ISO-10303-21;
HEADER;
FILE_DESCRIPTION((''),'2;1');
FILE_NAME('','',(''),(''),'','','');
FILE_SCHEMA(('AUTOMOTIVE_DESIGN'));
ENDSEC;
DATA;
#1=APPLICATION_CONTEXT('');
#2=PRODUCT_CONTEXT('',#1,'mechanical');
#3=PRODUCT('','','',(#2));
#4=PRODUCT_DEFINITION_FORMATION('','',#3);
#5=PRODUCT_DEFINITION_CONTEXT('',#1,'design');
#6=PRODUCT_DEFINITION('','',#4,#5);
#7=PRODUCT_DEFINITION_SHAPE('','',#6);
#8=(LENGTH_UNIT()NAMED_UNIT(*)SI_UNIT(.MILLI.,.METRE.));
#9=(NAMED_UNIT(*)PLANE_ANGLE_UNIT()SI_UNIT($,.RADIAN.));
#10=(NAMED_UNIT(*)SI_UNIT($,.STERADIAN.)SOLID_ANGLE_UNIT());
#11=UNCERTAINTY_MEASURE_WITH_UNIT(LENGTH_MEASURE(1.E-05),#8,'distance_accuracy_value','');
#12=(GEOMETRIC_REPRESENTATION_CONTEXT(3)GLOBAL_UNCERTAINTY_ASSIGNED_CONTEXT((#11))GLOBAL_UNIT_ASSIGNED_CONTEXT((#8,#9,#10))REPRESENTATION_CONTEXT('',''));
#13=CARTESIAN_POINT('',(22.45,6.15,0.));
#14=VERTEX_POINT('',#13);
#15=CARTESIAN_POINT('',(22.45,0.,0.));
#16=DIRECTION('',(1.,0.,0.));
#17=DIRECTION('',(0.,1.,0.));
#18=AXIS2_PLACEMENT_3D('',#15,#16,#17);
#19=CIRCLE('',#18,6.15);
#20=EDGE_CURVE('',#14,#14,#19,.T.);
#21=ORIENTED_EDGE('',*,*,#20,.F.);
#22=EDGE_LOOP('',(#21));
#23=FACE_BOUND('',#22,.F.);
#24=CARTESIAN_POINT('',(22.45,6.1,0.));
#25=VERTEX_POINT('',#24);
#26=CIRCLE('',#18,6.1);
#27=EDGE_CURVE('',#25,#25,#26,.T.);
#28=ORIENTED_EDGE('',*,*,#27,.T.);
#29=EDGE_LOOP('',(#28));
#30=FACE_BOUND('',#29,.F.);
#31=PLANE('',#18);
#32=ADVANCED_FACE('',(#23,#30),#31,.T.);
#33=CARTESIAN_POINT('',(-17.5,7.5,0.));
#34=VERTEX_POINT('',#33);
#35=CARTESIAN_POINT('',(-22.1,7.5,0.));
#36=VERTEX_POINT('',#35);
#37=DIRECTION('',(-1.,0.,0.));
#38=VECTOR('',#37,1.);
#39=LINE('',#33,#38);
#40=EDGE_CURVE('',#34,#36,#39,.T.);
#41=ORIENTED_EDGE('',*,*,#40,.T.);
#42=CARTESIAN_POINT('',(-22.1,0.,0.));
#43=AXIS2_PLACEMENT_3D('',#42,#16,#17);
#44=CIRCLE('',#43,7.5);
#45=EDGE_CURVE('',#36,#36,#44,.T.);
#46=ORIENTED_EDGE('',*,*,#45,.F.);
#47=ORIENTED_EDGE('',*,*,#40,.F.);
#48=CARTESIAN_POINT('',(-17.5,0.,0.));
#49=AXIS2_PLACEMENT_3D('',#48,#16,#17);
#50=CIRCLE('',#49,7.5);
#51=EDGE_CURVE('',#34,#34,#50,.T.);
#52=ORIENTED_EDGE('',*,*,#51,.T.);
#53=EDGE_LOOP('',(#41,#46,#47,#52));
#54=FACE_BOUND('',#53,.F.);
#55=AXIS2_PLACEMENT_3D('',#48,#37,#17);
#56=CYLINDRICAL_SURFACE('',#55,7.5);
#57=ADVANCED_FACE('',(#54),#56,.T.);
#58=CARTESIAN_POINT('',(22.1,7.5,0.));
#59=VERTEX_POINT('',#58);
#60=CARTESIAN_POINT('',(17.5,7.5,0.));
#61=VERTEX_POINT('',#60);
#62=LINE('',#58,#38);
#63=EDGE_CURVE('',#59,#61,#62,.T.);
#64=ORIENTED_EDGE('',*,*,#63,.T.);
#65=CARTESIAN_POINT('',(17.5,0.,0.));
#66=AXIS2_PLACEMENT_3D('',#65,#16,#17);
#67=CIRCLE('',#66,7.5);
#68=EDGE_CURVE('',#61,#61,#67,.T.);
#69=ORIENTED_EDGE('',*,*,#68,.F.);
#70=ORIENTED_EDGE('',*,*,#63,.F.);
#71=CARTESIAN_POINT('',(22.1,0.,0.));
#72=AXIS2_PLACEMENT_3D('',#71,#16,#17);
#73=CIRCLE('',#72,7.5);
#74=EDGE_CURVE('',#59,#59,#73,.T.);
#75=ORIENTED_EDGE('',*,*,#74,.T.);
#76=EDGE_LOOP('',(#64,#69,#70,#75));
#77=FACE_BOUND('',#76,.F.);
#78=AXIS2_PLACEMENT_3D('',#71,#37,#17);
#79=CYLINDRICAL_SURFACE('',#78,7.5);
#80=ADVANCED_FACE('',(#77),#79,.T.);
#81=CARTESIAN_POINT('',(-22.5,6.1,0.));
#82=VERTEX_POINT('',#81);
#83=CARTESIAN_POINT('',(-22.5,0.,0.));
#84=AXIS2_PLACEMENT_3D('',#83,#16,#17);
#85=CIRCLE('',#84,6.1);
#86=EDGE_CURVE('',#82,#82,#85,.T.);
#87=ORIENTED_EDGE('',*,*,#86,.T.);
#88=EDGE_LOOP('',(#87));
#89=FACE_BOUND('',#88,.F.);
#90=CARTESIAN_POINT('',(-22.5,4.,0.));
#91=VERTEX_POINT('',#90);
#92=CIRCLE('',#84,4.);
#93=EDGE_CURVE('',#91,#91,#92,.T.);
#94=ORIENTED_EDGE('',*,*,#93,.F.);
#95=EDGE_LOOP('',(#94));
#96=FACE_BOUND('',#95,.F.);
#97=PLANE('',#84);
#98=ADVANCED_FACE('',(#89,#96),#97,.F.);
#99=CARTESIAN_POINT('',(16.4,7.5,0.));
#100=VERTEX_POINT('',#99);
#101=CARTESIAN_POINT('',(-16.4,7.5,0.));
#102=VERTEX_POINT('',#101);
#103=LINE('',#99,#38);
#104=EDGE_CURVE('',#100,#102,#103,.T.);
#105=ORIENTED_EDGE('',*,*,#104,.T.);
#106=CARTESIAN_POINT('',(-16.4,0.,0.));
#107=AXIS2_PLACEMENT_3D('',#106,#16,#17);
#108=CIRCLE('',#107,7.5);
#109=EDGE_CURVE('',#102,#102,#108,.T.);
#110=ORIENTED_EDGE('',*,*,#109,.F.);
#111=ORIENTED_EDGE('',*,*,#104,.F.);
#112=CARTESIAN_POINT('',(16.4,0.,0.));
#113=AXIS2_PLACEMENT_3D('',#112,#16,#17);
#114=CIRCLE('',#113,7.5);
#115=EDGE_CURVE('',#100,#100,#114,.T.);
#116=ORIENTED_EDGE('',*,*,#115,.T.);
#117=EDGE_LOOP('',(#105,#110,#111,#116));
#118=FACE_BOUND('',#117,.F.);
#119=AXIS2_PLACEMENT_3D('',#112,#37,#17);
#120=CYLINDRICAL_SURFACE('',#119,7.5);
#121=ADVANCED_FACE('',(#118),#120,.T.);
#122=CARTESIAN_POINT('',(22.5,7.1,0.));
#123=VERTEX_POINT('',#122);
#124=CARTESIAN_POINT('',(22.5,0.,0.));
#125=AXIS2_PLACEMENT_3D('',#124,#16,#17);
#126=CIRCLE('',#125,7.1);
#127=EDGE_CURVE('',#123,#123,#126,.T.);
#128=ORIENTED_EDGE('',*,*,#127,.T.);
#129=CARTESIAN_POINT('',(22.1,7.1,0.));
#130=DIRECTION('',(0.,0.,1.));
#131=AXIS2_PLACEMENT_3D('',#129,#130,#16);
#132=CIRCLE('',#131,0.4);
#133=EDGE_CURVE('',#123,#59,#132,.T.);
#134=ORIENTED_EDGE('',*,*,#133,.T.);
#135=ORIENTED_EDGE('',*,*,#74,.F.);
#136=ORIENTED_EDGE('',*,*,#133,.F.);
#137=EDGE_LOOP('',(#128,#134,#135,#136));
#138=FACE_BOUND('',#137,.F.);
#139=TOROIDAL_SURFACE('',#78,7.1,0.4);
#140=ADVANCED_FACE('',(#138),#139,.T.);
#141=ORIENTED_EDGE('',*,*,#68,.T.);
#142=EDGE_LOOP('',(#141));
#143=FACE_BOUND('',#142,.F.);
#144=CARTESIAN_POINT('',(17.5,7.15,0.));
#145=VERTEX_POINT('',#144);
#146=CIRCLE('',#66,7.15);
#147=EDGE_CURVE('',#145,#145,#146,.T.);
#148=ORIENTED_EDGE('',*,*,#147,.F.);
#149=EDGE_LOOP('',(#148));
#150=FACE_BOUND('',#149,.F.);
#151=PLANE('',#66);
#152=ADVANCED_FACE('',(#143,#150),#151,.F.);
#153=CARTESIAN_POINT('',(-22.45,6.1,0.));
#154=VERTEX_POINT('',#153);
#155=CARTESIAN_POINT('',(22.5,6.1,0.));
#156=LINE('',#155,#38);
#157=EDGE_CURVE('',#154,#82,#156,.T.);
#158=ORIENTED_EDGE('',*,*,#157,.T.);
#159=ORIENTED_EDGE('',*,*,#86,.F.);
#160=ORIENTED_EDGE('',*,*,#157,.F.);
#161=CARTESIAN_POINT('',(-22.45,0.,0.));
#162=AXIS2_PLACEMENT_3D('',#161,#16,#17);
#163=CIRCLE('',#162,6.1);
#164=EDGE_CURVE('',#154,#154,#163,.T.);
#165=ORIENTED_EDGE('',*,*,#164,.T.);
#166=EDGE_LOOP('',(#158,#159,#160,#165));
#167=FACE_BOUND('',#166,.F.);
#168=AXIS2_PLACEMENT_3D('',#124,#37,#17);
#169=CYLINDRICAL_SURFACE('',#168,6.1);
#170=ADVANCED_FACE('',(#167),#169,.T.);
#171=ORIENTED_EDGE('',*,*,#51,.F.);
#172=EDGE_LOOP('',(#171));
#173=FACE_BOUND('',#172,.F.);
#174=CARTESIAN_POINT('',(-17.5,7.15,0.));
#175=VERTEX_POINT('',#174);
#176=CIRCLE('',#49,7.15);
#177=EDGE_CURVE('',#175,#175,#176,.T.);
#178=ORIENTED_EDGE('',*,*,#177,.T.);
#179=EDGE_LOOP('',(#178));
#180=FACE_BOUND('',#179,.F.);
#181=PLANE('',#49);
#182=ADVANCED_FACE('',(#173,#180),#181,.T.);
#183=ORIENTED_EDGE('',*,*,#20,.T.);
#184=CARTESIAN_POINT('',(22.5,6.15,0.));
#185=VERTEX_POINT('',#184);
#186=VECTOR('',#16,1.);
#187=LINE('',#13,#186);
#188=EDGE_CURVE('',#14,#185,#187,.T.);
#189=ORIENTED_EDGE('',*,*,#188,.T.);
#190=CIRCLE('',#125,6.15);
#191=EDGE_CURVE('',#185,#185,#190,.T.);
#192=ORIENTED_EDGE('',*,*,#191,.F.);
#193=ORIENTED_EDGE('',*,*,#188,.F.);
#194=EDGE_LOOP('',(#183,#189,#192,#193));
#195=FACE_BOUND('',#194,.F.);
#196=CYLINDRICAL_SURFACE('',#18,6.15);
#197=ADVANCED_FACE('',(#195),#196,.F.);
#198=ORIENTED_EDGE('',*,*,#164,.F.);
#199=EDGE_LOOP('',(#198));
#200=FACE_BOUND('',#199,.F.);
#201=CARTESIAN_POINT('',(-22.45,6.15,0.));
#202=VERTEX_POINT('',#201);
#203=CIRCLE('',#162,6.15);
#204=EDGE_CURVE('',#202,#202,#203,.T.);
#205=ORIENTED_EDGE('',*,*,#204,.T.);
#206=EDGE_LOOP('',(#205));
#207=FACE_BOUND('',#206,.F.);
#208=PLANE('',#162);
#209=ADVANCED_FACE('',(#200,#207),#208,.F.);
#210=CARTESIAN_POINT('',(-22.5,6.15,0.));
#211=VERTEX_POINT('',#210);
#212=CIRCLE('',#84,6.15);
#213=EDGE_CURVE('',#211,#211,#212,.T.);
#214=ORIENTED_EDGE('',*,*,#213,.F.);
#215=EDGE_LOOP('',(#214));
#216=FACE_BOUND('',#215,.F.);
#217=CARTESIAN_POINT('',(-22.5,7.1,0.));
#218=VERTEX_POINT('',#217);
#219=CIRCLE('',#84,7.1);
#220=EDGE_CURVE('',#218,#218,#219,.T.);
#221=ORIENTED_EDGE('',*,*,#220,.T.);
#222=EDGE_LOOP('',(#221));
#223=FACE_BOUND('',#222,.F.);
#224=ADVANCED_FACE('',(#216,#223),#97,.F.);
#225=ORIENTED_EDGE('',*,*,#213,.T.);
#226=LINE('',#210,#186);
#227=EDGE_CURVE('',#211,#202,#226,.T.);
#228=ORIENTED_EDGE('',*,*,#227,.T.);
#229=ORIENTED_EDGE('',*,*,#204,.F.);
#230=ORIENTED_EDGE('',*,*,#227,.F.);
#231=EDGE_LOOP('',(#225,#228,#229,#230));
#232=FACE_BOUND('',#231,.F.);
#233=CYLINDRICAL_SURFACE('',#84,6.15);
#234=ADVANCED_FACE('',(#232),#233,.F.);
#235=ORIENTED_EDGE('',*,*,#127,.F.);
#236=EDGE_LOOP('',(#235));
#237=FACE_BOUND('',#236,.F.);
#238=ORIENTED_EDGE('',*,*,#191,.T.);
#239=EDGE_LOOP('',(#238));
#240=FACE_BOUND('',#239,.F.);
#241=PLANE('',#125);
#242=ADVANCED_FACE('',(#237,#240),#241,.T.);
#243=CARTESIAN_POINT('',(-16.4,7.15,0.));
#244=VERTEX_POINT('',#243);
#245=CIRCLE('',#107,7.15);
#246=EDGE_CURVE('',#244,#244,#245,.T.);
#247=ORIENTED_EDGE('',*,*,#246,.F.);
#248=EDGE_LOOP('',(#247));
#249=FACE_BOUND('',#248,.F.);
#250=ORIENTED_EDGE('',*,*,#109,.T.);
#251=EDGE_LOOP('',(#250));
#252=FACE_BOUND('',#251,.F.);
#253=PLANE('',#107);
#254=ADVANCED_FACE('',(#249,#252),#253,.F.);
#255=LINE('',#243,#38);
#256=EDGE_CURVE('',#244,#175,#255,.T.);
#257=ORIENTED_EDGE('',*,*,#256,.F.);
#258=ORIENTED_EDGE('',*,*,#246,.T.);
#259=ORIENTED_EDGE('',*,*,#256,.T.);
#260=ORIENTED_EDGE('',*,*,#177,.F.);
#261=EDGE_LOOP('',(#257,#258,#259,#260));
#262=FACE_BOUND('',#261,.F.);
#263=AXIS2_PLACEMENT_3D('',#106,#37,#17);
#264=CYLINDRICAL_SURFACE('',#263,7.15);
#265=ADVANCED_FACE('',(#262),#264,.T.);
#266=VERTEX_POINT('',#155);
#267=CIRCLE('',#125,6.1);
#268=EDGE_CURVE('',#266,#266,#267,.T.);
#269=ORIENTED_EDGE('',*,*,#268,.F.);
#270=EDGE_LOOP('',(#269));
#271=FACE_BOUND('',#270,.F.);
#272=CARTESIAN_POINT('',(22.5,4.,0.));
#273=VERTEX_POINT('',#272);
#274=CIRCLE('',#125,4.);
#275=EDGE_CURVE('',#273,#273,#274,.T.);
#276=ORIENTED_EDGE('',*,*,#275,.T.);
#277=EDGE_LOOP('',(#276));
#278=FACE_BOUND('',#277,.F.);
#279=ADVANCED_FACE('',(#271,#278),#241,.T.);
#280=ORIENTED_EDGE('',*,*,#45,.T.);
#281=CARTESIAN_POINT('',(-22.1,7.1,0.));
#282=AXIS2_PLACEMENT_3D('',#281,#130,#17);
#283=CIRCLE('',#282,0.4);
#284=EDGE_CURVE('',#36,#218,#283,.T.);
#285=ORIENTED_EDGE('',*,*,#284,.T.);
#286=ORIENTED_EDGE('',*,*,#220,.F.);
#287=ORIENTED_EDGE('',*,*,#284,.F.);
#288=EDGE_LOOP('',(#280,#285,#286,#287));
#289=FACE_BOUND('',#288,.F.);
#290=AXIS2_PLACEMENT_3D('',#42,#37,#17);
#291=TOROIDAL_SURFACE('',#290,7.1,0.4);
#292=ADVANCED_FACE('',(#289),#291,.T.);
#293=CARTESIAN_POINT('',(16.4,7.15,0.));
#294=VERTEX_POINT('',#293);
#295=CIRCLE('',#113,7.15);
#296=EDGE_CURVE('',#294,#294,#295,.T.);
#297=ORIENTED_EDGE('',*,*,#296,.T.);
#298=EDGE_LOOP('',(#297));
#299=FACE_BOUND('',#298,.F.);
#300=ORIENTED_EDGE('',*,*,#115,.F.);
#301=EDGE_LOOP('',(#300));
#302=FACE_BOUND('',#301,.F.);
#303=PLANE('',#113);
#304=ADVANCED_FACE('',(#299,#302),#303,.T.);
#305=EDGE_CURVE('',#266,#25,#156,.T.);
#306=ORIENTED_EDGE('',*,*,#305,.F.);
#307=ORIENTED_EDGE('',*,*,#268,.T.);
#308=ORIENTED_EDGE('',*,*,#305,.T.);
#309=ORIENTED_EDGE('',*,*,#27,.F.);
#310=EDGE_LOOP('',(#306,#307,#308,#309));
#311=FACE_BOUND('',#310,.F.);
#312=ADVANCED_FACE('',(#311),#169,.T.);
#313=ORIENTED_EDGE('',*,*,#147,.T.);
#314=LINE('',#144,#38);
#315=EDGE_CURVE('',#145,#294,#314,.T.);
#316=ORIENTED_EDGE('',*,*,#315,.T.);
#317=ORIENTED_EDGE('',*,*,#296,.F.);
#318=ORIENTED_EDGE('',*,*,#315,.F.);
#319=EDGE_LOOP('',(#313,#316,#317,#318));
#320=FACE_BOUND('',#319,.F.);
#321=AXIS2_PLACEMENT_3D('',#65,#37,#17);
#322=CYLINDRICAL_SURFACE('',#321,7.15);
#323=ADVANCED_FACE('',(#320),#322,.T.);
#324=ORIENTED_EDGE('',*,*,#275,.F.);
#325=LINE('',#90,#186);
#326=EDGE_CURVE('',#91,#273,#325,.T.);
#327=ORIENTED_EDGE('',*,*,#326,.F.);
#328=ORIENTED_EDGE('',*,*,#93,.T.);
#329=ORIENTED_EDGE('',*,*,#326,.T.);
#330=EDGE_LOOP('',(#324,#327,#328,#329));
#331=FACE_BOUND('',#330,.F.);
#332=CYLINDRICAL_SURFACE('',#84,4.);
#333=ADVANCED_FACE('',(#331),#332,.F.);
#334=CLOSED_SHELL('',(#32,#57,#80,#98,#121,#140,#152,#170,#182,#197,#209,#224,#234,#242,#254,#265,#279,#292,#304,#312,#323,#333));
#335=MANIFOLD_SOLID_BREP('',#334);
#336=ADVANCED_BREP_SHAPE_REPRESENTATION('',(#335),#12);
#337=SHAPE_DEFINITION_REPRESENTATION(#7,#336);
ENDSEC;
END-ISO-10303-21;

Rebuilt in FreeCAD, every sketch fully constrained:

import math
import FreeCAD as App
import Part
import Sketcher
from FreeCAD import Vector
Q = App.Units.Quantity

doc = App.newDocument("Part")
params = doc.addObject("Spreadsheet::Sheet", "Params")
for row, (alias, value) in enumerate([
    ("sketch1_radius", "0.4 mm"),
    ("sketch1_width", "44.9 mm"),
    ("sketch1_width2", "4.6 mm"),
    ("sketch1_width3", "1.1 mm"),
    ("sketch1_width4", "32.8 mm"),
    ("revolution_angle", "360 deg"),
    ("sketch2_width", "45 mm"),
    ("sketch2_height", "2.1 mm"),
    ("revolution2_angle", "360 deg"),
], start=1):
    params.set(f"A{row}", alias)
    params.set(f"B{row}", "=" + value)
    params.setAlias(f"B{row}", alias)

body = doc.addObject("PartDesign::Body", "Body")

# Sketch on XY plane
sketch1 = body.newObject("Sketcher::SketchObject", "Sketch")
sketch1.AttachmentSupport = (doc.getObject("XY_Plane"), [""])
sketch1.MapMode = "FlatFace"
sketch1.addGeometry([
    Part.ArcOfCircle(Part.Circle(Vector(-22.1, 7.1, 0), Vector(0, 0, 1), 0.4), math.radians(90), math.radians(180)),  # 0
    Part.LineSegment(Vector(-22.5, 7.1, 0), Vector(-22.5, 6.15, 0)),  # 1
    Part.LineSegment(Vector(-22.5, 6.15, 0), Vector(-22.45, 6.15, 0)),  # 2
    Part.LineSegment(Vector(-22.45, 6.15, 0), Vector(-22.45, 6.1, 0)),  # 3
    Part.LineSegment(Vector(-22.45, 6.1, 0), Vector(22.45, 6.1, 0)),  # 4
    Part.LineSegment(Vector(22.45, 6.1, 0), Vector(22.45, 6.15, 0)),  # 5
    Part.LineSegment(Vector(22.45, 6.15, 0), Vector(22.5, 6.15, 0)),  # 6
    Part.LineSegment(Vector(22.5, 6.15, 0), Vector(22.5, 7.1, 0)),  # 7
    Part.ArcOfCircle(Part.Circle(Vector(22.1, 7.1, 0), Vector(0, 0, 1), 0.4), math.radians(0), math.radians(90)),  # 8
    Part.LineSegment(Vector(22.1, 7.5, 0), Vector(17.5, 7.5, 0)),  # 9
    Part.LineSegment(Vector(17.5, 7.5, 0), Vector(17.5, 7.15, 0)),  # 10
    Part.LineSegment(Vector(17.5, 7.15, 0), Vector(16.4, 7.15, 0)),  # 11
    Part.LineSegment(Vector(16.4, 7.15, 0), Vector(16.4, 7.5, 0)),  # 12
    Part.LineSegment(Vector(16.4, 7.5, 0), Vector(-16.4, 7.5, 0)),  # 13
    Part.LineSegment(Vector(-16.4, 7.5, 0), Vector(-16.4, 7.15, 0)),  # 14
    Part.LineSegment(Vector(-16.4, 7.15, 0), Vector(-17.5, 7.15, 0)),  # 15
    Part.LineSegment(Vector(-17.5, 7.15, 0), Vector(-17.5, 7.5, 0)),  # 16
    Part.LineSegment(Vector(-17.5, 7.5, 0), Vector(-22.1, 7.5, 0)),  # 17
], False)
sketch1.addConstraint([
    Sketcher.Constraint("Tangent", 0, 2, 1, 1),
    Sketcher.Constraint("Coincident", 1, 2, 2, 1),
    Sketcher.Constraint("Coincident", 2, 2, 3, 1),
    Sketcher.Constraint("Coincident", 3, 2, 4, 1),
    Sketcher.Constraint("Coincident", 4, 2, 5, 1),
    Sketcher.Constraint("Coincident", 5, 2, 6, 1),
    Sketcher.Constraint("Coincident", 6, 2, 7, 1),
    Sketcher.Constraint("Tangent", 7, 2, 8, 1),
    Sketcher.Constraint("Tangent", 8, 2, 9, 1),
    Sketcher.Constraint("Coincident", 9, 2, 10, 1),
    Sketcher.Constraint("Coincident", 10, 2, 11, 1),
    Sketcher.Constraint("Coincident", 11, 2, 12, 1),
    Sketcher.Constraint("Coincident", 12, 2, 13, 1),
    Sketcher.Constraint("Coincident", 13, 2, 14, 1),
    Sketcher.Constraint("Coincident", 14, 2, 15, 1),
    Sketcher.Constraint("Coincident", 15, 2, 16, 1),
    Sketcher.Constraint("Coincident", 16, 2, 17, 1),
    Sketcher.Constraint("Tangent", 17, 2, 0, 1),
    Sketcher.Constraint("Vertical", 1),
    Sketcher.Constraint("Horizontal", 2),
    Sketcher.Constraint("Vertical", 3),
    Sketcher.Constraint("Horizontal", 4),
    Sketcher.Constraint("Vertical", 5),
    Sketcher.Constraint("Horizontal", 6),
    Sketcher.Constraint("Vertical", 7),
    Sketcher.Constraint("Horizontal", 9),
    Sketcher.Constraint("Vertical", 10),
    Sketcher.Constraint("Horizontal", 11),
    Sketcher.Constraint("Vertical", 12),
    Sketcher.Constraint("Horizontal", 13),
    Sketcher.Constraint("Vertical", 14),
    Sketcher.Constraint("Horizontal", 15),
    Sketcher.Constraint("Vertical", 16),
    Sketcher.Constraint("Horizontal", 17),
    Sketcher.Constraint("Equal", 0, 8),
    Sketcher.Constraint("Symmetric", 0, 3, 8, 3, -2),
    Sketcher.Constraint("Symmetric", 2, 2, 5, 2, -2),
    Sketcher.Constraint("Symmetric", 11, 2, 14, 2, -2),
    Sketcher.Constraint("Horizontal", 9, 2, 12, 2),
    Sketcher.Constraint("Equal", 11, 15),
    Sketcher.Constraint("Equal", 6, 3),
    Sketcher.Constraint("Radius", 0, Q("0.4 mm")),
    Sketcher.Constraint("DistanceX", 4, 1, 4, 2, Q("44.9 mm")),
    Sketcher.Constraint("DistanceX", 9, 2, 9, 1, Q("4.6 mm")),
    Sketcher.Constraint("DistanceX", 11, 2, 11, 1, Q("1.1 mm")),
    Sketcher.Constraint("DistanceX", 13, 2, 13, 1, Q("32.8 mm")),
    Sketcher.Constraint("DistanceY", 3, 2, 0, 2, Q("1 mm")),
    Sketcher.Constraint("DistanceY", 5, 2, 10, 2, Q("1 mm")),
    Sketcher.Constraint("DistanceY", -1, 1, 0, 3, Q("7.1 mm")),
])
sketch1.setExpression("Constraints[41]", "Params.sketch1_radius")
sketch1.setExpression("Constraints[42]", "Params.sketch1_width")
sketch1.setExpression("Constraints[43]", "Params.sketch1_width2")
sketch1.setExpression("Constraints[44]", "Params.sketch1_width3")
sketch1.setExpression("Constraints[45]", "Params.sketch1_width4")
revolution = body.newObject("PartDesign::Revolution", "Revolution")
revolution.Profile = sketch1
revolution.ReferenceAxis = (sketch1, ["H_Axis"])
revolution.setExpression("Angle", "Params.revolution_angle")

# Sketch on XY plane
sketch2 = body.newObject("Sketcher::SketchObject", "Sketch001")
sketch2.AttachmentSupport = (doc.getObject("XY_Plane"), [""])
sketch2.MapMode = "FlatFace"
sketch2.addGeometry([
    Part.LineSegment(Vector(22.5, 6.1, 0), Vector(-22.5, 6.1, 0)),
    Part.LineSegment(Vector(-22.5, 6.1, 0), Vector(-22.5, 4, 0)),
    Part.LineSegment(Vector(-22.5, 4, 0), Vector(22.5, 4, 0)),
    Part.LineSegment(Vector(22.5, 4, 0), Vector(22.5, 6.1, 0)),
], False)
sketch2.addConstraint([
    Sketcher.Constraint("Coincident", 0, 2, 1, 1),
    Sketcher.Constraint("Coincident", 1, 2, 2, 1),
    Sketcher.Constraint("Coincident", 2, 2, 3, 1),
    Sketcher.Constraint("Coincident", 3, 2, 0, 1),
    Sketcher.Constraint("Horizontal", 0),
    Sketcher.Constraint("Vertical", 1),
    Sketcher.Constraint("Horizontal", 2),
    Sketcher.Constraint("Vertical", 3),
    Sketcher.Constraint("DistanceX", 0, 2, 0, 1, Q("45 mm")),
    Sketcher.Constraint("DistanceY", 1, 2, 1, 1, Q("2.1 mm")),
    Sketcher.Constraint("DistanceY", -1, 1, 1, 2, Q("4 mm")),
    Sketcher.Constraint("DistanceX", 0, 2, -1, 1, Q("22.5 mm")),
])
sketch2.setExpression("Constraints[8]", "Params.sketch2_width")
sketch2.setExpression("Constraints[9]", "Params.sketch2_height")
revolution2 = body.newObject("PartDesign::Revolution", "Revolution001")
revolution2.Profile = sketch2
revolution2.ReferenceAxis = (sketch2, ["H_Axis"])
revolution2.setExpression("Angle", "Params.revolution2_angle")

doc.recompute()
